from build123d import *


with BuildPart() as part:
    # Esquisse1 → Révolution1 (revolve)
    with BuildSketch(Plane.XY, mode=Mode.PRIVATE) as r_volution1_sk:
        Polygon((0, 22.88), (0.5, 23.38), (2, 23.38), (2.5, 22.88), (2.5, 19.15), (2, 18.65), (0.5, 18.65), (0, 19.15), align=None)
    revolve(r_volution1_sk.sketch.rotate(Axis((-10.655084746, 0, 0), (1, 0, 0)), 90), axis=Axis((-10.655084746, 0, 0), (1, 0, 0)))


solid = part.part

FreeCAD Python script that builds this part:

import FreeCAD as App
import Part
import Sketcher

doc = App.newDocument("Part")
body = doc.addObject("PartDesign::Body", "Body")

sketch1 = body.newObject("Sketcher::SketchObject", "Sketch")
sketch1.AttachmentSupport = (doc.getObject("XY_Plane"), [""])
sketch1.MapMode = "FlatFace"
sketch1.addGeometry([
    Part.LineSegment(App.Vector(0.5, 23.4, 0), App.Vector(0, 22.9, 0)),
    Part.LineSegment(App.Vector(0, 22.9, 0), App.Vector(0, 19.1, 0)),
    Part.LineSegment(App.Vector(0, 19.1, 0), App.Vector(0.5, 18.6, 0)),
    Part.LineSegment(App.Vector(0.5, 18.6, 0), App.Vector(2, 18.6, 0)),
    Part.LineSegment(App.Vector(2, 18.6, 0), App.Vector(2.5, 19.1, 0)),
    Part.LineSegment(App.Vector(2.5, 19.1, 0), App.Vector(2.5, 22.9, 0)),
    Part.LineSegment(App.Vector(2.5, 22.9, 0), App.Vector(2, 23.4, 0)),
    Part.LineSegment(App.Vector(2, 23.4, 0), App.Vector(0.5, 23.4, 0)),
], False)
sketch1.addConstraint([
    Sketcher.Constraint("Coincident", 0, 2, 1, 1),
    Sketcher.Constraint("Coincident", 1, 2, 2, 1),
    Sketcher.Constraint("Coincident", 2, 2, 3, 1),
    Sketcher.Constraint("Coincident", 3, 2, 4, 1),
    Sketcher.Constraint("Coincident", 4, 2, 5, 1),
    Sketcher.Constraint("Coincident", 5, 2, 6, 1),
    Sketcher.Constraint("Coincident", 6, 2, 7, 1),
    Sketcher.Constraint("Coincident", 7, 2, 0, 1),
    Sketcher.Constraint("Vertical", 1),
    Sketcher.Constraint("Horizontal", 3),
    Sketcher.Constraint("Vertical", 5),
    Sketcher.Constraint("Horizontal", 7),
    Sketcher.Constraint("PointOnObject", 0, 2, -2),
    Sketcher.Constraint("Perpendicular", 0, 2),
    Sketcher.Constraint("Perpendicular", 2, 4),
    Sketcher.Constraint("Perpendicular", 4, 6),
    Sketcher.Constraint("Horizontal", 1, 2, 4, 2),
    Sketcher.Constraint("Horizontal", 0, 2, 5, 2),
    Sketcher.Constraint("Vertical", 3, 2, 6, 2),
    Sketcher.Constraint("Vertical", 2, 2, 7, 2),
    Sketcher.Constraint("DistanceX", 3, 1, 3, 2, 1.5),
    Sketcher.Constraint("DistanceX", -1, 1, 3, 2, 2.0),
    Sketcher.Constraint("DistanceY", 1, 2, 1, 1, 3.73),
    Sketcher.Constraint("DistanceY", -1, 1, 0, 2, 22.88),
])
revolution = body.newObject("PartDesign::Revolution", "Revolution")
revolution.Profile = sketch1
revolution.ReferenceAxis = (sketch1, ["H_Axis"])
revolution.Angle = 360

doc.recompute()
